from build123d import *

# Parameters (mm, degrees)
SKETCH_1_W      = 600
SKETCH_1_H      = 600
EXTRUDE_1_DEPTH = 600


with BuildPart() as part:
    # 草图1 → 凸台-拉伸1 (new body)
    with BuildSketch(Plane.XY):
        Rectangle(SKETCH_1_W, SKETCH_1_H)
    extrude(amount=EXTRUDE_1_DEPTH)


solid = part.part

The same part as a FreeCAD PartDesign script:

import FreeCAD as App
import Part
import Sketcher
Q = App.Units.Quantity

doc = App.newDocument("Part")
body = doc.addObject("PartDesign::Body", "Body")

# Sketch on XY plane
sketch1 = body.newObject("Sketcher::SketchObject", "Sketch")
sketch1.AttachmentSupport = (doc.getObject("XY_Plane"), [""])
sketch1.MapMode = "FlatFace"
sketch1.addGeometry(Part.LineSegment(App.Vector(-300, 300, 0), App.Vector(-300, -300, 0)), False)
sketch1.addGeometry(Part.LineSegment(App.Vector(-300, -300, 0), App.Vector(300, -300, 0)), False)
sketch1.addGeometry(Part.LineSegment(App.Vector(300, -300, 0), App.Vector(300, 300, 0)), False)
sketch1.addGeometry(Part.LineSegment(App.Vector(300, 300, 0), App.Vector(-300, 300, 0)), False)
sketch1.addConstraint(Sketcher.Constraint("Coincident", 0, 2, 1, 1))
sketch1.addConstraint(Sketcher.Constraint("Coincident", 1, 2, 2, 1))
sketch1.addConstraint(Sketcher.Constraint("Coincident", 2, 2, 3, 1))
sketch1.addConstraint(Sketcher.Constraint("Coincident", 3, 2, 0, 1))
sketch1.addConstraint(Sketcher.Constraint("Vertical", 0))
sketch1.addConstraint(Sketcher.Constraint("Horizontal", 1))
sketch1.addConstraint(Sketcher.Constraint("Vertical", 2))
sketch1.addConstraint(Sketcher.Constraint("Horizontal", 3))
sketch1.addConstraint(Sketcher.Constraint("Symmetric", 0, 2, 2, 2, -1, 1))
sketch1.addConstraint(Sketcher.Constraint("Equal", 3, 0))
sketch1.addConstraint(Sketcher.Constraint("DistanceX", 1, 1, 1, 2, Q("600 mm")))
pad1 = body.newObject("PartDesign::Pad", "Pad")
pad1.Profile = sketch1
pad1.Length = 600

doc.recompute()
